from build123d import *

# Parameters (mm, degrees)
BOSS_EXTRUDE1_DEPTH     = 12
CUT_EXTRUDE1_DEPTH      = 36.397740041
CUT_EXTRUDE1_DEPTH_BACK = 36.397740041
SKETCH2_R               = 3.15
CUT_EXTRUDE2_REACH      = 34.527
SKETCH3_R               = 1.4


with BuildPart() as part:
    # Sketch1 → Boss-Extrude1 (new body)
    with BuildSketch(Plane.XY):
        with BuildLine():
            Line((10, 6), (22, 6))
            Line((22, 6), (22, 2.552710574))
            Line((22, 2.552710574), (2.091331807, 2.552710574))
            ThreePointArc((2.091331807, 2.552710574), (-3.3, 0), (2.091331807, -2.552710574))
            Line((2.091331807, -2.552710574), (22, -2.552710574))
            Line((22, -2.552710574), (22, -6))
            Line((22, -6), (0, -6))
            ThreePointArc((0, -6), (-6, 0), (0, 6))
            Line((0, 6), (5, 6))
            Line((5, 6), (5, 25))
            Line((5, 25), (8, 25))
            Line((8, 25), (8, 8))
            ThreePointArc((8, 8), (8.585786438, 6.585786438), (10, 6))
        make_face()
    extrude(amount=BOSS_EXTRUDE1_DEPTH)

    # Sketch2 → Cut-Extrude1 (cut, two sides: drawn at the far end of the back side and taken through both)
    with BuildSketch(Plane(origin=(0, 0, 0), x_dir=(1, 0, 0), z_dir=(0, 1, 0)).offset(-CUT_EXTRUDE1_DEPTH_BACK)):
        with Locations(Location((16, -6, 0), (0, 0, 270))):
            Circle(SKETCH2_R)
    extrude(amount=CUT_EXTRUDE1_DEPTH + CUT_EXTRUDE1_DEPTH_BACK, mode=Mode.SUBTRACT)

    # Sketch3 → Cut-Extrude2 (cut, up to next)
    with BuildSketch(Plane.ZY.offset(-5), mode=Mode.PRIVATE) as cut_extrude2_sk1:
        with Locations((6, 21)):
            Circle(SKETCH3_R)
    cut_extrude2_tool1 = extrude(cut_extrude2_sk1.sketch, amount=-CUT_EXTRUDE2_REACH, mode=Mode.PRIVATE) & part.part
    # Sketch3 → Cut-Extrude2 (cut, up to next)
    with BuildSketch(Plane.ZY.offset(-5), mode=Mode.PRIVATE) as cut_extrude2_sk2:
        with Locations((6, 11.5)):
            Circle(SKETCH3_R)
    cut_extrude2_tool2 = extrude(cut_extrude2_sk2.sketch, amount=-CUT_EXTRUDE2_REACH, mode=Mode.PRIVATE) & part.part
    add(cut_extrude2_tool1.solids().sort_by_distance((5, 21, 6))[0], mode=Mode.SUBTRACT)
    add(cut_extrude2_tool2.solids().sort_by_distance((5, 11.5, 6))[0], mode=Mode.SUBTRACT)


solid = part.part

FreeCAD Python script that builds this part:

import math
import FreeCAD as App
import Part
import Sketcher
from FreeCAD import Vector
Q = App.Units.Quantity

doc = App.newDocument("Part")
body = doc.addObject("PartDesign::Body", "Body")

sketch1 = body.newObject("Sketcher::SketchObject", "Sketch")
sketch1.AttachmentSupport = (doc.getObject("XY_Plane"), [""])
sketch1.MapMode = "FlatFace"
sketch1.addGeometry([
    Part.LineSegment(Vector(22, 6, 0), Vector(10, 6, 0)),
    Part.ArcOfCircle(Part.Circle(Vector(10, 8, 0), Vector(0, 0, 1), 2), math.radians(-180), math.radians(-90)),
    Part.LineSegment(Vector(8, 8, 0), Vector(8, 25, 0)),
    Part.LineSegment(Vector(8, 25, 0), Vector(5, 25, 0)),
    Part.LineSegment(Vector(5, 25, 0), Vector(5, 6, 0)),
    Part.LineSegment(Vector(5, 6, 0), Vector(0, 6, 0)),
    Part.ArcOfCircle(Part.Circle(Vector(0, 0, 0), Vector(0, 0, 1), 6), math.radians(90), math.radians(270)),
    Part.LineSegment(Vector(0, -6, 0), Vector(22, -6, 0)),
    Part.LineSegment(Vector(22, -6, 0), Vector(22, -2.552711, 0)),
    Part.LineSegment(Vector(22, -2.552711, 0), Vector(2.091332, -2.552711, 0)),
    Part.ArcOfCircle(Part.Circle(Vector(0, 0, 0), Vector(0, 0, 1), 3.3), math.radians(50.673634), math.radians(309.326366)),
    Part.LineSegment(Vector(2.091332, 2.552711, 0), Vector(22, 2.552711, 0)),
    Part.LineSegment(Vector(22, 2.552711, 0), Vector(22, 6, 0)),
], False)
sketch1.addConstraint([
    Sketcher.Constraint("Tangent", 0, 2, 1, 2),
    Sketcher.Constraint("Tangent", 1, 1, 2, 1),
    Sketcher.Constraint("Coincident", 2, 2, 3, 1),
    Sketcher.Constraint("Coincident", 3, 2, 4, 1),
    Sketcher.Constraint("Coincident", 4, 2, 5, 1),
    Sketcher.Constraint("Tangent", 5, 2, 6, 1),
    Sketcher.Constraint("Tangent", 6, 2, 7, 1),
    Sketcher.Constraint("Coincident", 7, 2, 8, 1),
    Sketcher.Constraint("Coincident", 8, 2, 9, 1),
    Sketcher.Constraint("Coincident", 9, 2, 10, 2),
    Sketcher.Constraint("Coincident", 10, 1, 11, 1),
    Sketcher.Constraint("Coincident", 11, 2, 12, 1),
    Sketcher.Constraint("Coincident", 12, 2, 0, 1),
    Sketcher.Constraint("Horizontal", 0),
    Sketcher.Constraint("Vertical", 2),
    Sketcher.Constraint("Horizontal", 3),
    Sketcher.Constraint("Vertical", 4),
    Sketcher.Constraint("Horizontal", 5),
    Sketcher.Constraint("Horizontal", 7),
    Sketcher.Constraint("Vertical", 8),
    Sketcher.Constraint("Horizontal", 9),
    Sketcher.Constraint("Horizontal", 11),
    Sketcher.Constraint("Vertical", 12),
    Sketcher.Constraint("Coincident", 6, 3, -1, 1),
    Sketcher.Constraint("Coincident", 10, 3, -1, 1),
    Sketcher.Constraint("Symmetric", 8, 2, 11, 2, -1),
    Sketcher.Constraint("Horizontal", 0, 2, 4, 2),
    Sketcher.Constraint("Radius", 1, Q("2 mm")),
    Sketcher.Constraint("Radius", 6, Q("6 mm")),
    Sketcher.Constraint("Radius", 10, Q("3.3 mm")),
    Sketcher.Constraint("DistanceX", 0, 2, 0, 1, Q("12 mm")),
    Sketcher.Constraint("DistanceX", 3, 2, 3, 1, Q("3 mm")),
    Sketcher.Constraint("DistanceX", 5, 2, 5, 1, Q("5 mm")),
    Sketcher.Constraint("DistanceY", 2, 1, 2, 2, Q("17 mm")),
    Sketcher.Constraint("DistanceX", 9, 2, 9, 1, Q("19.908668 mm")),
])
pad1 = body.newObject("PartDesign::Pad", "Pad")
pad1.Profile = sketch1
pad1.Length = 12

sketch2 = body.newObject("Sketcher::SketchObject", "Sketch001")
sketch2.AttachmentSupport = (doc.getObject("XZ_Plane"), [""])
sketch2.MapMode = "FlatFace"
sketch2.addGeometry(Part.Circle(Vector(16, 6, 0), Vector(0, 0, 1), 3.15), False)
sketch2.addConstraint([
    Sketcher.Constraint("Diameter", 0, Q("6.3 mm")),
    Sketcher.Constraint("DistanceX", -1, 1, 0, 3, Q("16 mm")),
    Sketcher.Constraint("DistanceY", -1, 1, 0, 3, Q("6 mm")),
])
pocket1 = body.newObject("PartDesign::Pocket", "Pocket")
pocket1.Profile = sketch2
pocket1.Type = "ThroughAll"
pocket1.Midplane = True

sketch3 = body.newObject("Sketcher::SketchObject", "Sketch002")
sketch3.AttachmentSupport = (doc.getObject("YZ_Plane"), [""])
sketch3.MapMode = "FlatFace"
sketch3.AttachmentOffset = App.Placement(Vector(0, 0, 5), App.Rotation())
sketch3.addGeometry(Part.Circle(Vector(21, 6, 0), Vector(0, 0, 1), 1.4), False)
sketch3.addConstraint([
    Sketcher.Constraint("Diameter", 0, Q("2.8 mm")),
    Sketcher.Constraint("DistanceX", -1, 1, 0, 3, Q("21 mm")),
    Sketcher.Constraint("DistanceY", -1, 1, 0, 3, Q("6 mm")),
])
pocket2 = body.newObject("PartDesign::Pocket", "Pocket001")
pocket2.Profile = sketch3
pocket2.Type = "UpToFirst"
pocket2.Reversed = True

sketch4 = body.newObject("Sketcher::SketchObject", "Sketch003")
sketch4.AttachmentSupport = (doc.getObject("YZ_Plane"), [""])
sketch4.MapMode = "FlatFace"
sketch4.AttachmentOffset = App.Placement(Vector(0, 0, 5), App.Rotation())
sketch4.addGeometry(Part.Circle(Vector(11.5, 6, 0), Vector(0, 0, 1), 1.4), False)
sketch4.addConstraint([
    Sketcher.Constraint("Diameter", 0, Q("2.8 mm")),
    Sketcher.Constraint("DistanceY", -1, 1, 0, 3, Q("6 mm")),
    Sketcher.Constraint("DistanceX", -1, 1, 0, 3, Q("11.5 mm")),
])
pocket3 = body.newObject("PartDesign::Pocket", "Pocket002")
pocket3.Profile = sketch4
pocket3.Type = "UpToFirst"
pocket3.Reversed = True

doc.recompute()
